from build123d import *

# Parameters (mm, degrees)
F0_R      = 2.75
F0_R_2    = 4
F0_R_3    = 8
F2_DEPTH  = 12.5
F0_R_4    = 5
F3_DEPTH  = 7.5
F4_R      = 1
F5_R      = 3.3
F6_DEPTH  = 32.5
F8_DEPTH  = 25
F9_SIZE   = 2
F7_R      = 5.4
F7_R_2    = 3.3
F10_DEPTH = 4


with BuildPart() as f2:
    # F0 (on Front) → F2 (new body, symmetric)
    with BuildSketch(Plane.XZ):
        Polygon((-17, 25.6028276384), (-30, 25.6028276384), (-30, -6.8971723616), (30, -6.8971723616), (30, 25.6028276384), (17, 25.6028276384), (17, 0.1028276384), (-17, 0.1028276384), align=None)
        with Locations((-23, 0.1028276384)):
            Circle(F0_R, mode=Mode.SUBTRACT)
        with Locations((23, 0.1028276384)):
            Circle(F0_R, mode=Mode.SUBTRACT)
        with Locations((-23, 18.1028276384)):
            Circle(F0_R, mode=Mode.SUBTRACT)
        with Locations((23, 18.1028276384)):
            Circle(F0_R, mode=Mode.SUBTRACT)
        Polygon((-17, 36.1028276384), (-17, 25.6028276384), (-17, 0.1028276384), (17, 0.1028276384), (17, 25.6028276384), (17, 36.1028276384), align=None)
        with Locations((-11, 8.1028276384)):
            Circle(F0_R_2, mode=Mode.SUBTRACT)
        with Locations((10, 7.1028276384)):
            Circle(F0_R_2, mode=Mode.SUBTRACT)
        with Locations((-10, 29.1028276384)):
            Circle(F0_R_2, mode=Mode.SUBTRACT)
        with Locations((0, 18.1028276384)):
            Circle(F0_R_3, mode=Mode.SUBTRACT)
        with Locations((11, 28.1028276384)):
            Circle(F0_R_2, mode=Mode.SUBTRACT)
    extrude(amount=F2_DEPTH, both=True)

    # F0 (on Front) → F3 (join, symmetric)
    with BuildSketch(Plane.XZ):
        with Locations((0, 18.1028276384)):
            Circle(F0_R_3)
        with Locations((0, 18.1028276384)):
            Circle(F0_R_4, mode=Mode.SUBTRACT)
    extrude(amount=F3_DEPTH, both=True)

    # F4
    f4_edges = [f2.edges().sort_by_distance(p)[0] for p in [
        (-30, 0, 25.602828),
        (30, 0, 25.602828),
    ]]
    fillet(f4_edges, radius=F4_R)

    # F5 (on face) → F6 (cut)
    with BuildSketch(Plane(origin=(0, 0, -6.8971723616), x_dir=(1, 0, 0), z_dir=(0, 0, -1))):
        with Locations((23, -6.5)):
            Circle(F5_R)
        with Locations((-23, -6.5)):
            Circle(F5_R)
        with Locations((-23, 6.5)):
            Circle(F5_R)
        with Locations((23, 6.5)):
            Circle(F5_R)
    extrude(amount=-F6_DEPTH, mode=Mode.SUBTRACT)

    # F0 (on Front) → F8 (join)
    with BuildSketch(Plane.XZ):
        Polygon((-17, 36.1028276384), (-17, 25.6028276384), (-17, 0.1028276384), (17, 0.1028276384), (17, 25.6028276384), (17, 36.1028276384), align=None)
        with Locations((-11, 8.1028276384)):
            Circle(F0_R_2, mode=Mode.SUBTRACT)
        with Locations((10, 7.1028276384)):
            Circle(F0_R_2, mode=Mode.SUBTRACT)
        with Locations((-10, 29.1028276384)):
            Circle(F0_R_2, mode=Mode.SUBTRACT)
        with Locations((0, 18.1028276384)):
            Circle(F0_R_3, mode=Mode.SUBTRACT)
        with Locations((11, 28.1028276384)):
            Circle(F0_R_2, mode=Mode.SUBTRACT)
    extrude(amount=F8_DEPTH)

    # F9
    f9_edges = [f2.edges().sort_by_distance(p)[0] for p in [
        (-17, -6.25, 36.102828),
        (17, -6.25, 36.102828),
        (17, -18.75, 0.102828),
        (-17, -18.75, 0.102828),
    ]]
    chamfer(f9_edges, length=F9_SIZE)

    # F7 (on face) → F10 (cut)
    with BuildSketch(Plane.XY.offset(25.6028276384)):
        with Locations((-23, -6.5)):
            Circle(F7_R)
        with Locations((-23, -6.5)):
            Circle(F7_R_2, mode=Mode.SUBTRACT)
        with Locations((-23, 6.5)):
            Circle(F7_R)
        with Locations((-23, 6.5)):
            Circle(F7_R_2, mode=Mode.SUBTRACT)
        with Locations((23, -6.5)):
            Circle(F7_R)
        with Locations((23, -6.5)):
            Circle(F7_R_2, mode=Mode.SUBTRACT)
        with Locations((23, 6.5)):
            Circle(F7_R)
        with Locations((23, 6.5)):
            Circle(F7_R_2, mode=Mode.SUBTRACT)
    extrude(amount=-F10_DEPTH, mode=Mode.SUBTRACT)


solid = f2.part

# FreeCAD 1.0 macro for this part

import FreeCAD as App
import Part
import Sketcher
from FreeCAD import Vector


def edges_at(feature, points):
    """Names of the edges that pass closest to the given points."""
    edges = feature.Shape.Edges
    near = lambda p: min(range(len(edges)), key=lambda i: edges[i].distToShape(Part.Vertex(*p))[0])
    return sorted({f"Edge{near(p) + 1}" for p in points})


def add_polygon(sketch, points):
    """Adds a closed chain of lines whose ends are joined by coincident constraints."""
    first, n = sketch.GeometryCount, len(points)
    for a, b in zip(points, points[1:] + points[:1]):
        sketch.addGeometry(Part.LineSegment(App.Vector(*a, 0), App.Vector(*b, 0)), False)
    for i in range(n):
        sketch.addConstraint(Sketcher.Constraint("Coincident", first + i, 2, first + (i + 1) % n, 1))

doc = App.newDocument("Part")
body = doc.addObject("PartDesign::Body", "Body")

# Sketch on XZ plane
sketch1 = body.newObject("Sketcher::SketchObject", "Sketch")
sketch1.AttachmentSupport = (doc.getObject("XZ_Plane"), [""])
sketch1.MapMode = "FlatFace"
add_polygon(sketch1, [(-17, 25.602828), (-30, 25.602828), (-30, -6.897172), (30, -6.897172), (30, 25.602828), (17, 25.602828), (17, 36.102828), (-17, 36.102828)])  # lines 0-7
sketch1.addGeometry(Part.Circle(Vector(-23, 0.102828, 0), Vector(0, 0, 1), 2.75), False)  # 8
sketch1.addGeometry(Part.Circle(Vector(-11, 8.102828, 0), Vector(0, 0, 1), 4), False)  # 9
sketch1.addGeometry(Part.Circle(Vector(23, 0.102828, 0), Vector(0, 0, 1), 2.75), False)  # 10
sketch1.addGeometry(Part.Circle(Vector(10, 7.102828, 0), Vector(0, 0, 1), 4), False)  # 11
sketch1.addGeometry(Part.Circle(Vector(-23, 18.102828, 0), Vector(0, 0, 1), 2.75), False)  # 12
sketch1.addGeometry(Part.Circle(Vector(0, 18.102828, 0), Vector(0, 0, 1), 8), False)  # 13
sketch1.addGeometry(Part.Circle(Vector(-10, 29.102828, 0), Vector(0, 0, 1), 4), False)  # 14
sketch1.addGeometry(Part.Circle(Vector(23, 18.102828, 0), Vector(0, 0, 1), 2.75), False)  # 15
sketch1.addGeometry(Part.Circle(Vector(11, 28.102828, 0), Vector(0, 0, 1), 4), False)  # 16
sketch1.addConstraint(Sketcher.Constraint("Horizontal", 0))
sketch1.addConstraint(Sketcher.Constraint("Vertical", 1))
sketch1.addConstraint(Sketcher.Constraint("Horizontal", 2))
sketch1.addConstraint(Sketcher.Constraint("Vertical", 3))
sketch1.addConstraint(Sketcher.Constraint("Horizontal", 4))
sketch1.addConstraint(Sketcher.Constraint("Vertical", 5))
sketch1.addConstraint(Sketcher.Constraint("Horizontal", 6))
sketch1.addConstraint(Sketcher.Constraint("Vertical", 7))
sketch1.addConstraint(Sketcher.Constraint("Equal", 8, 10))
sketch1.addConstraint(Sketcher.Constraint("Equal", 9, 11))
sketch1.addConstraint(Sketcher.Constraint("Equal", 10, 12))
sketch1.addConstraint(Sketcher.Constraint("Equal", 11, 14))
sketch1.addConstraint(Sketcher.Constraint("Equal", 12, 15))
sketch1.addConstraint(Sketcher.Constraint("Equal", 14, 16))
sketch1.addConstraint(Sketcher.Constraint("Symmetric", 8, 3, 10, 3, -2))
sketch1.addConstraint(Sketcher.Constraint("Symmetric", 12, 3, 15, 3, -2))
sketch1.addConstraint(Sketcher.Constraint("Symmetric", 0, 2, 3, 2, -2))
sketch1.addConstraint(Sketcher.Constraint("PointOnObject", 13, 3, -2))
sketch1.addConstraint(Sketcher.Constraint("Horizontal", 12, 3, 13, 3))
sketch1.addConstraint(Sketcher.Constraint("Vertical", 8, 3, 12, 3))
sketch1.addConstraint(Sketcher.Constraint("Equal", 0, 4))
sketch1.addConstraint(Sketcher.Constraint("Diameter", 9, 8.0))
sketch1.addConstraint(Sketcher.Constraint("Diameter", 13, 16.0))
sketch1.addConstraint(Sketcher.Constraint("Diameter", 8, 5.5))
sketch1.addConstraint(Sketcher.Constraint("DistanceX", 0, 2, 0, 1, 13.0))
sketch1.addConstraint(Sketcher.Constraint("DistanceX", 2, 1, 2, 2, 60.0))
sketch1.addConstraint(Sketcher.Constraint("DistanceY", 1, 2, 1, 1, 32.5))
sketch1.addConstraint(Sketcher.Constraint("DistanceY", 5, 1, 5, 2, 10.5))
sketch1.addConstraint(Sketcher.Constraint("DistanceX", 8, 3, -1, 1, 23.0))
sketch1.addConstraint(Sketcher.Constraint("DistanceX", 9, 3, -1, 1, 11.0))
sketch1.addConstraint(Sketcher.Constraint("DistanceX", -1, 1, 11, 3, 10.0))
sketch1.addConstraint(Sketcher.Constraint("DistanceX", 14, 3, -1, 1, 10.0))
sketch1.addConstraint(Sketcher.Constraint("DistanceX", -1, 1, 16, 3, 11.0))
sketch1.addConstraint(Sketcher.Constraint("DistanceY", 8, 3, 9, 3, 8.0))
sketch1.addConstraint(Sketcher.Constraint("DistanceY", 10, 3, 11, 3, 7.0))
sketch1.addConstraint(Sketcher.Constraint("DistanceY", 9, 3, 12, 3, 10.0))
sketch1.addConstraint(Sketcher.Constraint("DistanceY", 13, 3, 14, 3, 11.0))
sketch1.addConstraint(Sketcher.Constraint("DistanceY", 13, 3, 16, 3, 10.0))
sketch1.addConstraint(Sketcher.Constraint("DistanceY", 1, 2, 8, 3, 7.0))
sketch1.addConstraint(Sketcher.Constraint("DistanceY", -1, 1, 8, 3, 0.102828))
pad1 = body.newObject("PartDesign::Pad", "Pad")
pad1.Profile = sketch1
pad1.Length = 25
pad1.Midplane = True

# Sketch on XZ plane
sketch2 = body.newObject("Sketcher::SketchObject", "Sketch001")
sketch2.AttachmentSupport = (doc.getObject("XZ_Plane"), [""])
sketch2.MapMode = "FlatFace"
sketch2.addGeometry(Part.Circle(Vector(0, 18.102828, 0), Vector(0, 0, 1), 8), False)
sketch2.addGeometry(Part.Circle(Vector(0, 18.102828, 0), Vector(0, 0, 1), 5), False)
sketch2.addConstraint(Sketcher.Constraint("Coincident", 1, 3, 0, 3))
sketch2.addConstraint(Sketcher.Constraint("PointOnObject", 0, 3, -2))
sketch2.addConstraint(Sketcher.Constraint("Diameter", 0, 16.0))
sketch2.addConstraint(Sketcher.Constraint("Diameter", 1, 10.0))
sketch2.addConstraint(Sketcher.Constraint("DistanceY", -1, 1, 0, 3, 18.102828))
pad2 = body.newObject("PartDesign::Pad", "Pad001")
pad2.Profile = sketch2
pad2.Length = 15
pad2.Midplane = True
doc.recompute()

fillet = body.newObject("PartDesign::Fillet", "Fillet")
fillet.Base = (pad2, edges_at(pad2, [(-30, 0, 25.603), (30, 0, 25.603)]))
fillet.Radius = 1

# Sketch on XY plane
sketch3 = body.newObject("Sketcher::SketchObject", "Sketch002")
sketch3.AttachmentSupport = (doc.getObject("XY_Plane"), [""])
sketch3.MapMode = "FlatFace"
sketch3.AttachmentOffset = App.Placement(Vector(0, 0, -6.897172), App.Rotation())
sketch3.addGeometry(Part.Circle(Vector(23, 6.5, 0), Vector(0, 0, 1), 3.3), False)
sketch3.addGeometry(Part.Circle(Vector(-23, 6.5, 0), Vector(0, 0, 1), 3.3), False)
sketch3.addGeometry(Part.Circle(Vector(-23, -6.5, 0), Vector(0, 0, 1), 3.3), False)
sketch3.addGeometry(Part.Circle(Vector(23, -6.5, 0), Vector(0, 0, 1), 3.3), False)
sketch3.addConstraint(Sketcher.Constraint("Equal", 0, 1))
sketch3.addConstraint(Sketcher.Constraint("Equal", 1, 2))
sketch3.addConstraint(Sketcher.Constraint("Equal", 2, 3))
sketch3.addConstraint(Sketcher.Constraint("Symmetric", 0, 3, 2, 3, -1, 1))
sketch3.addConstraint(Sketcher.Constraint("Symmetric", 1, 3, 3, 3, -1, 1))
sketch3.addConstraint(Sketcher.Constraint("Symmetric", 0, 3, 1, 3, -2))
sketch3.addConstraint(Sketcher.Constraint("Diameter", 0, 6.6))
sketch3.addConstraint(Sketcher.Constraint("DistanceX", -1, 1, 0, 3, 23.0))
sketch3.addConstraint(Sketcher.Constraint("DistanceY", 2, 3, 1, 3, 13.0))
pocket1 = body.newObject("PartDesign::Pocket", "Pocket")
pocket1.Profile = sketch3
pocket1.Length = 32.5
pocket1.Reversed = True

# Sketch on XZ plane
sketch4 = body.newObject("Sketcher::SketchObject", "Sketch003")
sketch4.AttachmentSupport = (doc.getObject("XZ_Plane"), [""])
sketch4.MapMode = "FlatFace"
add_polygon(sketch4, [(-17, 36.102828), (-17, 0.102828), (17, 0.102828), (17, 36.102828)])  # lines 0-3
sketch4.addGeometry(Part.Circle(Vector(-11, 8.102828, 0), Vector(0, 0, 1), 4), False)  # 4
sketch4.addGeometry(Part.Circle(Vector(10, 7.102828, 0), Vector(0, 0, 1), 4), False)  # 5
sketch4.addGeometry(Part.Circle(Vector(-10, 29.102828, 0), Vector(0, 0, 1), 4), False)  # 6
sketch4.addGeometry(Part.Circle(Vector(0, 18.102828, 0), Vector(0, 0, 1), 8), False)  # 7
sketch4.addGeometry(Part.Circle(Vector(11, 28.102828, 0), Vector(0, 0, 1), 4), False)  # 8
sketch4.addConstraint(Sketcher.Constraint("Vertical", 0))
sketch4.addConstraint(Sketcher.Constraint("Horizontal", 1))
sketch4.addConstraint(Sketcher.Constraint("Vertical", 2))
sketch4.addConstraint(Sketcher.Constraint("Horizontal", 3))
sketch4.addConstraint(Sketcher.Constraint("Equal", 4, 5))
sketch4.addConstraint(Sketcher.Constraint("Equal", 5, 6))
sketch4.addConstraint(Sketcher.Constraint("Equal", 6, 8))
sketch4.addConstraint(Sketcher.Constraint("PointOnObject", 7, 3, -2))
sketch4.addConstraint(Sketcher.Constraint("Diameter", 4, 8.0))
sketch4.addConstraint(Sketcher.Constraint("Diameter", 7, 16.0))
sketch4.addConstraint(Sketcher.Constraint("DistanceX", 1, 1, 1, 2, 34.0))
sketch4.addConstraint(Sketcher.Constraint("DistanceY", 0, 2, 0, 1, 36.0))
sketch4.addConstraint(Sketcher.Constraint("DistanceX", 4, 3, -1, 1, 11.0))
sketch4.addConstraint(Sketcher.Constraint("DistanceX", -1, 1, 5, 3, 10.0))
sketch4.addConstraint(Sketcher.Constraint("DistanceX", 6, 3, -1, 1, 10.0))
sketch4.addConstraint(Sketcher.Constraint("DistanceX", -1, 1, 8, 3, 11.0))
sketch4.addConstraint(Sketcher.Constraint("DistanceX", 0, 2, -1, 1, 17.0))
sketch4.addConstraint(Sketcher.Constraint("DistanceY", 5, 3, 4, 3, 1.0))
sketch4.addConstraint(Sketcher.Constraint("DistanceY", 4, 3, 6, 3, 21.0))
sketch4.addConstraint(Sketcher.Constraint("DistanceY", 4, 3, 7, 3, 10.0))
sketch4.addConstraint(Sketcher.Constraint("DistanceY", 7, 3, 8, 3, 10.0))
sketch4.addConstraint(Sketcher.Constraint("DistanceY", 0, 2, 4, 3, 8.0))
sketch4.addConstraint(Sketcher.Constraint("DistanceY", -1, 1, 4, 3, 8.102828))
pad3 = body.newObject("PartDesign::Pad", "Pad002")
pad3.Profile = sketch4
pad3.Length = 25
doc.recompute()

chamfer = body.newObject("PartDesign::Chamfer", "Chamfer")
chamfer.Base = (pad3, edges_at(pad3, [
    (-17, -6.25, 36.103),
    (17, -6.25, 36.103),
    (17, -18.75, 0.103),
    (-17, -18.75, 0.103),
]))
chamfer.Size = 2

# Sketch on XY plane
sketch5 = body.newObject("Sketcher::SketchObject", "Sketch004")
sketch5.AttachmentSupport = (doc.getObject("XY_Plane"), [""])
sketch5.MapMode = "FlatFace"
sketch5.AttachmentOffset = App.Placement(Vector(0, 0, 25.602828), App.Rotation())
sketch5.addGeometry(Part.Circle(Vector(-23, -6.5, 0), Vector(0, 0, 1), 5.4), False)
sketch5.addGeometry(Part.Circle(Vector(-23, -6.5, 0), Vector(0, 0, 1), 3.3), False)
sketch5.addGeometry(Part.Circle(Vector(-23, 6.5, 0), Vector(0, 0, 1), 5.4), False)
sketch5.addGeometry(Part.Circle(Vector(-23, 6.5, 0), Vector(0, 0, 1), 3.3), False)
sketch5.addGeometry(Part.Circle(Vector(23, -6.5, 0), Vector(0, 0, 1), 5.4), False)
sketch5.addGeometry(Part.Circle(Vector(23, -6.5, 0), Vector(0, 0, 1), 3.3), False)
sketch5.addGeometry(Part.Circle(Vector(23, 6.5, 0), Vector(0, 0, 1), 5.4), False)
sketch5.addGeometry(Part.Circle(Vector(23, 6.5, 0), Vector(0, 0, 1), 3.3), False)
sketch5.addConstraint(Sketcher.Constraint("Coincident", 1, 3, 0, 3))
sketch5.addConstraint(Sketcher.Constraint("Coincident", 3, 3, 2, 3))
sketch5.addConstraint(Sketcher.Constraint("Coincident", 5, 3, 4, 3))
sketch5.addConstraint(Sketcher.Constraint("Coincident", 7, 3, 6, 3))
sketch5.addConstraint(Sketcher.Constraint("Equal", 0, 2))
sketch5.addConstraint(Sketcher.Constraint("Equal", 1, 3))
sketch5.addConstraint(Sketcher.Constraint("Equal", 2, 4))
sketch5.addConstraint(Sketcher.Constraint("Equal", 3, 5))
sketch5.addConstraint(Sketcher.Constraint("Equal", 4, 6))
sketch5.addConstraint(Sketcher.Constraint("Equal", 5, 7))
sketch5.addConstraint(Sketcher.Constraint("Symmetric", 2, 3, 4, 3, -1, 1))
sketch5.addConstraint(Sketcher.Constraint("Symmetric", 0, 3, 6, 3, -1, 1))
sketch5.addConstraint(Sketcher.Constraint("Symmetric", 0, 3, 4, 3, -2))
sketch5.addConstraint(Sketcher.Constraint("Diameter", 0, 10.8))
sketch5.addConstraint(Sketcher.Constraint("Diameter", 1, 6.6))
sketch5.addConstraint(Sketcher.Constraint("DistanceX", 0, 3, -1, 1, 23.0))
sketch5.addConstraint(Sketcher.Constraint("DistanceY", 0, 3, 2, 3, 13.0))
pocket2 = body.newObject("PartDesign::Pocket", "Pocket001")
pocket2.Profile = sketch5
pocket2.Length = 4

doc.recompute()
